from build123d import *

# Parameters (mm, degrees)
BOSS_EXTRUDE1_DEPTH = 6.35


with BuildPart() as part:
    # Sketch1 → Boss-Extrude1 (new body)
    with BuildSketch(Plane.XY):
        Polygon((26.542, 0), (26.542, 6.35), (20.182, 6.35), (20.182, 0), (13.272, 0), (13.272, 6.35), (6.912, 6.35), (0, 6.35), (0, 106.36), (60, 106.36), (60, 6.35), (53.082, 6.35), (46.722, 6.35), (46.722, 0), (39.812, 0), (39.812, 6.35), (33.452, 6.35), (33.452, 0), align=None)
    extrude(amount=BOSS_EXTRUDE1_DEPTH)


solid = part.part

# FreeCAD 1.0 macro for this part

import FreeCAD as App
import Part
import Sketcher
from FreeCAD import Vector
Q = App.Units.Quantity


def add_polygon(sketch, points):
    """Adds a closed chain of lines whose ends are joined by coincident constraints."""
    first, n = sketch.GeometryCount, len(points)
    for a, b in zip(points, points[1:] + points[:1]):
        sketch.addGeometry(Part.LineSegment(App.Vector(*a, 0), App.Vector(*b, 0)), False)
    for i in range(n):
        sketch.addConstraint(Sketcher.Constraint("Coincident", first + i, 2, first + (i + 1) % n, 1))

doc = App.newDocument("Part")
body = doc.addObject("PartDesign::Body", "Body")

sketch1 = body.newObject("Sketcher::SketchObject", "Sketch")
sketch1.AttachmentSupport = (doc.getObject("XY_Plane"), [""])
sketch1.MapMode = "FlatFace"
add_polygon(sketch1, [(27, 6), (27, 0), (33, 0), (33, 6), (40, 6), (40, 0), (47, 0), (47, 6), (60, 6), (60, 106), (0, 106), (0, 6), (13, 6), (13, 0), (20, 0), (20, 6)])
sketch1.addConstraint(Sketcher.Constraint("Vertical", 0))
sketch1.addConstraint(Sketcher.Constraint("Horizontal", 1))
sketch1.addConstraint(Sketcher.Constraint("Vertical", 2))
sketch1.addConstraint(Sketcher.Constraint("Horizontal", 3))
sketch1.addConstraint(Sketcher.Constraint("Vertical", 4))
sketch1.addConstraint(Sketcher.Constraint("Horizontal", 5))
sketch1.addConstraint(Sketcher.Constraint("Vertical", 6))
sketch1.addConstraint(Sketcher.Constraint("Horizontal", 7))
sketch1.addConstraint(Sketcher.Constraint("Vertical", 8))
sketch1.addConstraint(Sketcher.Constraint("Horizontal", 9))
sketch1.addConstraint(Sketcher.Constraint("Vertical", 10))
sketch1.addConstraint(Sketcher.Constraint("Horizontal", 11))
sketch1.addConstraint(Sketcher.Constraint("Vertical", 12))
sketch1.addConstraint(Sketcher.Constraint("Horizontal", 13))
sketch1.addConstraint(Sketcher.Constraint("Vertical", 14))
sketch1.addConstraint(Sketcher.Constraint("Horizontal", 15))
sketch1.addConstraint(Sketcher.Constraint("PointOnObject", 0, 2, -1))
sketch1.addConstraint(Sketcher.Constraint("PointOnObject", 4, 2, -1))
sketch1.addConstraint(Sketcher.Constraint("PointOnObject", 9, 2, -2))
sketch1.addConstraint(Sketcher.Constraint("PointOnObject", 12, 2, -1))
sketch1.addConstraint(Sketcher.Constraint("Horizontal", 3, 2, 6, 2))
sketch1.addConstraint(Sketcher.Constraint("Horizontal", 7, 2, 10, 2))
sketch1.addConstraint(Sketcher.Constraint("Horizontal", 11, 2, 14, 2))
sketch1.addConstraint(Sketcher.Constraint("Equal", 1, 5))
sketch1.addConstraint(Sketcher.Constraint("Equal", 5, 13))
sketch1.addConstraint(Sketcher.Constraint("Equal", 3, 15))
sketch1.addConstraint(Sketcher.Constraint("DistanceX", 9, 2, 9, 1, Q("60 mm")))
sketch1.addConstraint(Sketcher.Constraint("DistanceX", 1, 1, 1, 2, Q("6.91 mm")))
sketch1.addConstraint(Sketcher.Constraint("DistanceX", 3, 1, 3, 2, Q("6.36 mm")))
sketch1.addConstraint(Sketcher.Constraint("DistanceY", 0, 2, 0, 1, Q("6.35 mm")))
sketch1.addConstraint(Sketcher.Constraint("DistanceY", 8, 1, 8, 2, Q("100.01 mm")))
sketch1.addConstraint(Sketcher.Constraint("DistanceX", 7, 1, 7, 2, Q("13.278 mm")))
pad1 = body.newObject("PartDesign::Pad", "Pad")
pad1.Profile = sketch1
pad1.Length = 6.35

doc.recompute()
